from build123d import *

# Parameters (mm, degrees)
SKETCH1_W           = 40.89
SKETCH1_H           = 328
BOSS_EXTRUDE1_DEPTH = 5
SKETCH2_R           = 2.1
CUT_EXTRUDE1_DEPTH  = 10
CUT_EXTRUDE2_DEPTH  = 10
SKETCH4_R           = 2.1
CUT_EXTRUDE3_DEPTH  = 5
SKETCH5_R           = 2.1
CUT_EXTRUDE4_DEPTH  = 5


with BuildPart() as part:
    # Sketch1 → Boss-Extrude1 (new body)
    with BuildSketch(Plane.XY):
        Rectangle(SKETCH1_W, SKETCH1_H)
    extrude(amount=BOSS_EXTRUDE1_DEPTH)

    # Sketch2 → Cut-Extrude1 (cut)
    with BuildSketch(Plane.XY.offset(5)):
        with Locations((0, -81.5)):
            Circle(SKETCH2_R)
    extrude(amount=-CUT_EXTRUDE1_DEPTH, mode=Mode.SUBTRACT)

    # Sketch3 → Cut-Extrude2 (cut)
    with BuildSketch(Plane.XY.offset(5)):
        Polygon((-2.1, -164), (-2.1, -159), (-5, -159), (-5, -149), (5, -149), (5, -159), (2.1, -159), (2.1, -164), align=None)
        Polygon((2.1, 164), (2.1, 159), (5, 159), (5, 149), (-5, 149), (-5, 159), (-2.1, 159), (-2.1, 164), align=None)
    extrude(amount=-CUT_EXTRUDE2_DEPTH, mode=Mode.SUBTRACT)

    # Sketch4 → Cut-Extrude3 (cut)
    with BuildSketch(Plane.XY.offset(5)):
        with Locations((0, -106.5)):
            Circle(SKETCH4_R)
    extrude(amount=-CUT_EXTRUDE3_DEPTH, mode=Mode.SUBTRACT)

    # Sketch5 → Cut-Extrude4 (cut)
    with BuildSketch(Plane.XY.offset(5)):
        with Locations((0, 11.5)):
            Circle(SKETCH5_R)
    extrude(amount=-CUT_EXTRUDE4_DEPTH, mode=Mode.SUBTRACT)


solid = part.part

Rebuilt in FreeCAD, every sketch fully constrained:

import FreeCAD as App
import Part
import Sketcher
Q = App.Units.Quantity


def add_polygon(sketch, points):
    """Adds a closed chain of lines whose ends are joined by coincident constraints."""
    first, n = sketch.GeometryCount, len(points)
    for a, b in zip(points, points[1:] + points[:1]):
        sketch.addGeometry(Part.LineSegment(App.Vector(*a, 0), App.Vector(*b, 0)), False)
    for i in range(n):
        sketch.addConstraint(Sketcher.Constraint("Coincident", first + i, 2, first + (i + 1) % n, 1))

doc = App.newDocument("Part")
params = doc.addObject("Spreadsheet::Sheet", "Params")
for row, (alias, value) in enumerate([
    ("sketch1_height", "328 mm"),
    ("sketch1_width", "40.89 mm"),
    ("pad1_length", "5 mm"),
    ("sketch2_diameter", "4.2 mm"),
    ("pocket1_length", "10 mm"),
    ("sketch3_width", "10 mm"),
    ("sketch3_height", "5 mm"),
    ("sketch3_width2", "4.2 mm"),
    ("pocket2_length", "10 mm"),
    ("sketch4_diameter", "4.2 mm"),
    ("pocket3_length", "5 mm"),
    ("sketch5_diameter", "4.2 mm"),
    ("pocket4_length", "5 mm"),
], start=1):
    params.set(f"A{row}", alias)
    params.set(f"B{row}", "=" + value)
    params.setAlias(f"B{row}", alias)

body = doc.addObject("PartDesign::Body", "Body")

# Sketch on XY plane
sketch1 = body.newObject("Sketcher::SketchObject", "Sketch")
sketch1.AttachmentSupport = (doc.getObject("XY_Plane"), [""])
sketch1.MapMode = "FlatFace"
add_polygon(sketch1, [(-20, 164), (-20, -164), (20, -164), (20, 164)])  # lines 0-3
sketch1.addConstraint(Sketcher.Constraint("Vertical", 0))
sketch1.addConstraint(Sketcher.Constraint("Horizontal", 1))
sketch1.addConstraint(Sketcher.Constraint("Vertical", 2))
sketch1.addConstraint(Sketcher.Constraint("Horizontal", 3))
sketch1.addConstraint(Sketcher.Constraint("Symmetric", 0, 2, 2, 2, -1, 1))
sketch1.addConstraint(Sketcher.Constraint("DistanceY", 0, 2, 0, 1, Q("328 mm")))
sketch1.addConstraint(Sketcher.Constraint("DistanceX", 1, 1, 1, 2, Q("40.89 mm")))
sketch1.setExpression("Constraints[9]", "Params.sketch1_height")
sketch1.setExpression("Constraints[10]", "Params.sketch1_width")
pad1 = body.newObject("PartDesign::Pad", "Pad")
pad1.Profile = sketch1
pad1.setExpression("Length", "Params.pad1_length")

# Sketch on XY plane
sketch2 = body.newObject("Sketcher::SketchObject", "Sketch001")
sketch2.AttachmentSupport = (doc.getObject("XY_Plane"), [""])
sketch2.MapMode = "FlatFace"
sketch2.AttachmentOffset = App.Placement(App.Vector(0, 0, 5), App.Rotation())
sketch2.addGeometry(Part.Circle(App.Vector(0, -81.5, 0), App.Vector(0, 0, 1), 2.1), False)
sketch2.addConstraint(Sketcher.Constraint("PointOnObject", 0, 3, -2))
sketch2.addConstraint(Sketcher.Constraint("Diameter", 0, Q("4.2 mm")))
sketch2.addConstraint(Sketcher.Constraint("DistanceY", 0, 3, -1, 1, Q("81.5 mm")))
sketch2.setExpression("Constraints[1]", "Params.sketch2_diameter")
pocket1 = body.newObject("PartDesign::Pocket", "Pocket")
pocket1.Profile = sketch2
pocket1.setExpression("Length", "Params.pocket1_length")

# Sketch on XY plane
sketch3 = body.newObject("Sketcher::SketchObject", "Sketch002")
sketch3.AttachmentSupport = (doc.getObject("XY_Plane"), [""])
sketch3.MapMode = "FlatFace"
sketch3.AttachmentOffset = App.Placement(App.Vector(0, 0, 5), App.Rotation())
add_polygon(sketch3, [(-2.1, -159), (-2.1, -164), (2.1, -164), (2.1, -159), (5, -159), (5, -149), (-5, -149), (-5, -159)])  # lines 0-7
add_polygon(sketch3, [(2.1, 159), (2.1, 164), (-2.1, 164), (-2.1, 159), (-5, 159), (-5, 149), (5, 149), (5, 159)])  # lines 8-15
sketch3.addConstraint(Sketcher.Constraint("Vertical", 0))
sketch3.addConstraint(Sketcher.Constraint("Horizontal", 1))
sketch3.addConstraint(Sketcher.Constraint("Vertical", 2))
sketch3.addConstraint(Sketcher.Constraint("Horizontal", 3))
sketch3.addConstraint(Sketcher.Constraint("Vertical", 4))
sketch3.addConstraint(Sketcher.Constraint("Horizontal", 5))
sketch3.addConstraint(Sketcher.Constraint("Vertical", 6))
sketch3.addConstraint(Sketcher.Constraint("Horizontal", 7))
sketch3.addConstraint(Sketcher.Constraint("Vertical", 8))
sketch3.addConstraint(Sketcher.Constraint("Horizontal", 9))
sketch3.addConstraint(Sketcher.Constraint("Vertical", 10))
sketch3.addConstraint(Sketcher.Constraint("Horizontal", 11))
sketch3.addConstraint(Sketcher.Constraint("Vertical", 12))
sketch3.addConstraint(Sketcher.Constraint("Horizontal", 13))
sketch3.addConstraint(Sketcher.Constraint("Vertical", 14))
sketch3.addConstraint(Sketcher.Constraint("Horizontal", 15))
sketch3.addConstraint(Sketcher.Constraint("Symmetric", 0, 2, 8, 2, -1, 1))
sketch3.addConstraint(Sketcher.Constraint("Symmetric", 2, 2, 10, 2, -1, 1))
sketch3.addConstraint(Sketcher.Constraint("Symmetric", 4, 2, 12, 2, -1, 1))
sketch3.addConstraint(Sketcher.Constraint("Symmetric", 6, 2, 14, 2, -1, 1))
sketch3.addConstraint(Sketcher.Constraint("Symmetric", 3, 2, 6, 2, -2))
sketch3.addConstraint(Sketcher.Constraint("Vertical", 2, 2, 8, 2))
sketch3.addConstraint(Sketcher.Constraint("Equal", 13, 4))
sketch3.addConstraint(Sketcher.Constraint("DistanceX", 5, 2, 5, 1, Q("10 mm")))
sketch3.addConstraint(Sketcher.Constraint("DistanceY", 0, 2, 0, 1, Q("5 mm")))
sketch3.addConstraint(Sketcher.Constraint("DistanceX", 1, 1, 1, 2, Q("4.2 mm")))
sketch3.addConstraint(Sketcher.Constraint("DistanceY", 0, 2, -1, 1, Q("164 mm")))
sketch3.setExpression("Constraints[39]", "Params.sketch3_width")
sketch3.setExpression("Constraints[40]", "Params.sketch3_height")
sketch3.setExpression("Constraints[41]", "Params.sketch3_width2")
pocket2 = body.newObject("PartDesign::Pocket", "Pocket001")
pocket2.Profile = sketch3
pocket2.setExpression("Length", "Params.pocket2_length")

# Sketch on XY plane
sketch4 = body.newObject("Sketcher::SketchObject", "Sketch003")
sketch4.AttachmentSupport = (doc.getObject("XY_Plane"), [""])
sketch4.MapMode = "FlatFace"
sketch4.AttachmentOffset = App.Placement(App.Vector(0, 0, 5), App.Rotation())
sketch4.addGeometry(Part.Circle(App.Vector(0, -106.5, 0), App.Vector(0, 0, 1), 2.1), False)
sketch4.addConstraint(Sketcher.Constraint("PointOnObject", 0, 3, -2))
sketch4.addConstraint(Sketcher.Constraint("Diameter", 0, Q("4.2 mm")))
sketch4.addConstraint(Sketcher.Constraint("DistanceY", 0, 3, -1, 1, Q("106.5 mm")))
sketch4.setExpression("Constraints[1]", "Params.sketch4_diameter")
pocket3 = body.newObject("PartDesign::Pocket", "Pocket002")
pocket3.Profile = sketch4
pocket3.setExpression("Length", "Params.pocket3_length")

# Sketch on XY plane
sketch5 = body.newObject("Sketcher::SketchObject", "Sketch004")
sketch5.AttachmentSupport = (doc.getObject("XY_Plane"), [""])
sketch5.MapMode = "FlatFace"
sketch5.AttachmentOffset = App.Placement(App.Vector(0, 0, 5), App.Rotation())
sketch5.addGeometry(Part.Circle(App.Vector(0, 11.5, 0), App.Vector(0, 0, 1), 2.1), False)
sketch5.addConstraint(Sketcher.Constraint("PointOnObject", 0, 3, -2))
sketch5.addConstraint(Sketcher.Constraint("Diameter", 0, Q("4.2 mm")))
sketch5.addConstraint(Sketcher.Constraint("DistanceY", -1, 1, 0, 3, Q("11.5 mm")))
sketch5.setExpression("Constraints[1]", "Params.sketch5_diameter")
pocket4 = body.newObject("PartDesign::Pocket", "Pocket003")
pocket4.Profile = sketch5
pocket4.setExpression("Length", "Params.pocket4_length")

doc.recompute()
